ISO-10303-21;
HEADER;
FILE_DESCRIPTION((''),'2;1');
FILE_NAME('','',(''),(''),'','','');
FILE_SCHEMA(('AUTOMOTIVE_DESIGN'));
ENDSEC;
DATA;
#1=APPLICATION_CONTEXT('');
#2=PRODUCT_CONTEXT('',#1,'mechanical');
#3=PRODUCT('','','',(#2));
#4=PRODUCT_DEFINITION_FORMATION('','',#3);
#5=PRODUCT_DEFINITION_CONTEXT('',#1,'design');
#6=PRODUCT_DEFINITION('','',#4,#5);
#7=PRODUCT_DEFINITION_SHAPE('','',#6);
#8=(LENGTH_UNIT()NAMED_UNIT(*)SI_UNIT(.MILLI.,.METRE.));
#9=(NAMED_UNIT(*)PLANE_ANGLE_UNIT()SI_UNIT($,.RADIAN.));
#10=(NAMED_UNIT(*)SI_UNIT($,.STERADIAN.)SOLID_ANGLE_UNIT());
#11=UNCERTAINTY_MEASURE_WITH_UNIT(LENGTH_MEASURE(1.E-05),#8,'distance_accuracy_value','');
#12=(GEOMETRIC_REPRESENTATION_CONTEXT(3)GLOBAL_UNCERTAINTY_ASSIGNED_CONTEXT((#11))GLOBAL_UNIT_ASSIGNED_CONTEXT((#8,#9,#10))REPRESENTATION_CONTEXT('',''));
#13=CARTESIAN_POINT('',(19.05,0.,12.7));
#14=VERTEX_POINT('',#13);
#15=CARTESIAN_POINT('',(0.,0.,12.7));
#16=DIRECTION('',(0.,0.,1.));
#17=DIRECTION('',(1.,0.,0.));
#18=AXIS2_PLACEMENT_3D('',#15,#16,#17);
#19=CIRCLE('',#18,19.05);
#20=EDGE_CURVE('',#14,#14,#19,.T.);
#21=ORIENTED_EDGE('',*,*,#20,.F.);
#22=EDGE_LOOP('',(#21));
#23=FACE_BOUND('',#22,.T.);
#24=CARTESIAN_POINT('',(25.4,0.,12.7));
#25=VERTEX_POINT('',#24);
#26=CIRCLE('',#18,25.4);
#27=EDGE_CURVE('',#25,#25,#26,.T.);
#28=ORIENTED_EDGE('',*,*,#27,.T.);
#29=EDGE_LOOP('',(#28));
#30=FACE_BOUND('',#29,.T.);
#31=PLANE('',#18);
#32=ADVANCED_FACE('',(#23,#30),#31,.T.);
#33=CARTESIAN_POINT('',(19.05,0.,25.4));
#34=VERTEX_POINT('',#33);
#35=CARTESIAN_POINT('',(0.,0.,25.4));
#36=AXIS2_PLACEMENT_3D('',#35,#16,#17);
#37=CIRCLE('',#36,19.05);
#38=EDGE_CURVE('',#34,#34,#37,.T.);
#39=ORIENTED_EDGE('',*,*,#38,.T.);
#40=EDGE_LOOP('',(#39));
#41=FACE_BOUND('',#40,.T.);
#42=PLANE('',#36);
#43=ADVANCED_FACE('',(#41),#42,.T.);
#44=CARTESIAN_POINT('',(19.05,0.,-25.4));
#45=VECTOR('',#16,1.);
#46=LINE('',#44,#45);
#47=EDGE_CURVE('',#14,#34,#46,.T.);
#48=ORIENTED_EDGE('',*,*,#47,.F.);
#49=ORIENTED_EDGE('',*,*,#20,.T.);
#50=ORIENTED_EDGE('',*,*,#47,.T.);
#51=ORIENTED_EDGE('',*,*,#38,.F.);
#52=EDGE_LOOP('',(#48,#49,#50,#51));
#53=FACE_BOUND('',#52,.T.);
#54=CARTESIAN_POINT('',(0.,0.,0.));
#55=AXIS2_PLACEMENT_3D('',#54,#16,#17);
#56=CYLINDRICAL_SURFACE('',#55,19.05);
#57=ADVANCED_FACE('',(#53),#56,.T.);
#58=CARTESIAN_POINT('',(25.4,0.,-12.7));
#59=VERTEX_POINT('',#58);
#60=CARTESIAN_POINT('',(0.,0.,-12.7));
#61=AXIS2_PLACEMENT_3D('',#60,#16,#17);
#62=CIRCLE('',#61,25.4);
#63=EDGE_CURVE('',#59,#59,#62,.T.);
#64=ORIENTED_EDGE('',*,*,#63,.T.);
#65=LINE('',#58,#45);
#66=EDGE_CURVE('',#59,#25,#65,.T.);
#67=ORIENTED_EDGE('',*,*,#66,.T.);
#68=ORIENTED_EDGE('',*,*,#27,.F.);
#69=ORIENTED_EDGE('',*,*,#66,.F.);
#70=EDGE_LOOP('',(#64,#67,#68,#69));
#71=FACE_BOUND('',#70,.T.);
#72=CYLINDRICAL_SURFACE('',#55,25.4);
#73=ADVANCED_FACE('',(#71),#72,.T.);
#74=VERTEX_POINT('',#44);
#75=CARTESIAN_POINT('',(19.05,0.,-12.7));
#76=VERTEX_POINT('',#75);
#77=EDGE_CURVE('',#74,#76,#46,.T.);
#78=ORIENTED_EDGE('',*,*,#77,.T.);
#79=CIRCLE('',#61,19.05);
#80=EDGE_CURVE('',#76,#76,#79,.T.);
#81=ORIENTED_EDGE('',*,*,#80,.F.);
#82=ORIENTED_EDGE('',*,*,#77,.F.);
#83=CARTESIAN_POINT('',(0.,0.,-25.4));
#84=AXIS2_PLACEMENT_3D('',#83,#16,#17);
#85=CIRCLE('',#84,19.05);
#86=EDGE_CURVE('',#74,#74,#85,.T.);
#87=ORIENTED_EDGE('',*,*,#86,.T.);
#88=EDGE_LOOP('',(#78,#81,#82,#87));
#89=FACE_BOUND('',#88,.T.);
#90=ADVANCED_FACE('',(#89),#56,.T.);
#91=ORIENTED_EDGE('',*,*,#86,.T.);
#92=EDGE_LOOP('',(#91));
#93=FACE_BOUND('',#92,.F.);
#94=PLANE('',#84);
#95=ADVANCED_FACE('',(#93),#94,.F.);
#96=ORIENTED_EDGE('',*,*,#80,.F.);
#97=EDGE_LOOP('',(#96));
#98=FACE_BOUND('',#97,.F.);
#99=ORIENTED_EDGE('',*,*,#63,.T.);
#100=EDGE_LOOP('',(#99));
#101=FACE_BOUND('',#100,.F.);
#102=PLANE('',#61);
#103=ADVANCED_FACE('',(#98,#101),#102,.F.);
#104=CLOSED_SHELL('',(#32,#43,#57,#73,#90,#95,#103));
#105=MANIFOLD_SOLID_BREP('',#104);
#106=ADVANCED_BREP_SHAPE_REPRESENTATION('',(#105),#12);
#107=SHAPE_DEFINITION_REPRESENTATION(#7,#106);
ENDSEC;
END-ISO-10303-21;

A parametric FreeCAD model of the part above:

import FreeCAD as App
import Part
import Sketcher
from FreeCAD import Vector
Q = App.Units.Quantity

doc = App.newDocument("Part")
params = doc.addObject("Spreadsheet::Sheet", "Params")
for row, (alias, value) in enumerate([
    ("sketch1_diameter", "1.5 in"),
    ("pad1_length", "2 in"),
    ("sketch2_diameter", "2 in"),
    ("sketch2_diameter2", "1.5 in"),
    ("pad2_length", "1 in"),
], start=1):
    params.set(f"A{row}", alias)
    params.set(f"B{row}", "=" + value)
    params.setAlias(f"B{row}", alias)

body = doc.addObject("PartDesign::Body", "Body")

sketch1 = doc.addObject("Sketcher::SketchObject", "Sketch")
body.addObject(sketch1)
sketch1.AttachmentSupport = (doc.XY_Plane, [""])
sketch1.MapMode = "FlatFace"
sketch1.addGeometry(Part.Circle(Vector(0, 0, 0), Vector(0, 0, 1), 19.05), False)
sketch1.addConstraint([
    Sketcher.Constraint("Coincident", 0, 3, -1, 1),
    Sketcher.Constraint("Diameter", 0, Q("1.5 in")),
])
sketch1.setExpression("Constraints[1]", "Params.sketch1_diameter")
pad1 = doc.addObject("PartDesign::Pad", "Pad")
body.addObject(pad1)
pad1.Profile = sketch1
pad1.setExpression("Length", "Params.pad1_length")
pad1.Midplane = True

sketch2 = doc.addObject("Sketcher::SketchObject", "Sketch001")
body.addObject(sketch2)
sketch2.AttachmentSupport = (doc.XY_Plane, [""])
sketch2.MapMode = "FlatFace"
sketch2.addGeometry([
    Part.Circle(Vector(0, 0, 0), Vector(0, 0, 1), 25.4),
    Part.Circle(Vector(0, 0, 0), Vector(0, 0, 1), 19.05),
], False)
sketch2.addConstraint([
    Sketcher.Constraint("Coincident", 0, 3, -1, 1),
    Sketcher.Constraint("Coincident", 1, 3, -1, 1),
    Sketcher.Constraint("Diameter", 0, Q("2 in")),
    Sketcher.Constraint("Diameter", 1, Q("1.5 in")),
])
sketch2.setExpression("Constraints[2]", "Params.sketch2_diameter")
sketch2.setExpression("Constraints[3]", "Params.sketch2_diameter2")
pad2 = doc.addObject("PartDesign::Pad", "Pad001")
body.addObject(pad2)
pad2.Profile = sketch2
pad2.setExpression("Length", "Params.pad2_length")
pad2.Midplane = True

doc.recompute()
